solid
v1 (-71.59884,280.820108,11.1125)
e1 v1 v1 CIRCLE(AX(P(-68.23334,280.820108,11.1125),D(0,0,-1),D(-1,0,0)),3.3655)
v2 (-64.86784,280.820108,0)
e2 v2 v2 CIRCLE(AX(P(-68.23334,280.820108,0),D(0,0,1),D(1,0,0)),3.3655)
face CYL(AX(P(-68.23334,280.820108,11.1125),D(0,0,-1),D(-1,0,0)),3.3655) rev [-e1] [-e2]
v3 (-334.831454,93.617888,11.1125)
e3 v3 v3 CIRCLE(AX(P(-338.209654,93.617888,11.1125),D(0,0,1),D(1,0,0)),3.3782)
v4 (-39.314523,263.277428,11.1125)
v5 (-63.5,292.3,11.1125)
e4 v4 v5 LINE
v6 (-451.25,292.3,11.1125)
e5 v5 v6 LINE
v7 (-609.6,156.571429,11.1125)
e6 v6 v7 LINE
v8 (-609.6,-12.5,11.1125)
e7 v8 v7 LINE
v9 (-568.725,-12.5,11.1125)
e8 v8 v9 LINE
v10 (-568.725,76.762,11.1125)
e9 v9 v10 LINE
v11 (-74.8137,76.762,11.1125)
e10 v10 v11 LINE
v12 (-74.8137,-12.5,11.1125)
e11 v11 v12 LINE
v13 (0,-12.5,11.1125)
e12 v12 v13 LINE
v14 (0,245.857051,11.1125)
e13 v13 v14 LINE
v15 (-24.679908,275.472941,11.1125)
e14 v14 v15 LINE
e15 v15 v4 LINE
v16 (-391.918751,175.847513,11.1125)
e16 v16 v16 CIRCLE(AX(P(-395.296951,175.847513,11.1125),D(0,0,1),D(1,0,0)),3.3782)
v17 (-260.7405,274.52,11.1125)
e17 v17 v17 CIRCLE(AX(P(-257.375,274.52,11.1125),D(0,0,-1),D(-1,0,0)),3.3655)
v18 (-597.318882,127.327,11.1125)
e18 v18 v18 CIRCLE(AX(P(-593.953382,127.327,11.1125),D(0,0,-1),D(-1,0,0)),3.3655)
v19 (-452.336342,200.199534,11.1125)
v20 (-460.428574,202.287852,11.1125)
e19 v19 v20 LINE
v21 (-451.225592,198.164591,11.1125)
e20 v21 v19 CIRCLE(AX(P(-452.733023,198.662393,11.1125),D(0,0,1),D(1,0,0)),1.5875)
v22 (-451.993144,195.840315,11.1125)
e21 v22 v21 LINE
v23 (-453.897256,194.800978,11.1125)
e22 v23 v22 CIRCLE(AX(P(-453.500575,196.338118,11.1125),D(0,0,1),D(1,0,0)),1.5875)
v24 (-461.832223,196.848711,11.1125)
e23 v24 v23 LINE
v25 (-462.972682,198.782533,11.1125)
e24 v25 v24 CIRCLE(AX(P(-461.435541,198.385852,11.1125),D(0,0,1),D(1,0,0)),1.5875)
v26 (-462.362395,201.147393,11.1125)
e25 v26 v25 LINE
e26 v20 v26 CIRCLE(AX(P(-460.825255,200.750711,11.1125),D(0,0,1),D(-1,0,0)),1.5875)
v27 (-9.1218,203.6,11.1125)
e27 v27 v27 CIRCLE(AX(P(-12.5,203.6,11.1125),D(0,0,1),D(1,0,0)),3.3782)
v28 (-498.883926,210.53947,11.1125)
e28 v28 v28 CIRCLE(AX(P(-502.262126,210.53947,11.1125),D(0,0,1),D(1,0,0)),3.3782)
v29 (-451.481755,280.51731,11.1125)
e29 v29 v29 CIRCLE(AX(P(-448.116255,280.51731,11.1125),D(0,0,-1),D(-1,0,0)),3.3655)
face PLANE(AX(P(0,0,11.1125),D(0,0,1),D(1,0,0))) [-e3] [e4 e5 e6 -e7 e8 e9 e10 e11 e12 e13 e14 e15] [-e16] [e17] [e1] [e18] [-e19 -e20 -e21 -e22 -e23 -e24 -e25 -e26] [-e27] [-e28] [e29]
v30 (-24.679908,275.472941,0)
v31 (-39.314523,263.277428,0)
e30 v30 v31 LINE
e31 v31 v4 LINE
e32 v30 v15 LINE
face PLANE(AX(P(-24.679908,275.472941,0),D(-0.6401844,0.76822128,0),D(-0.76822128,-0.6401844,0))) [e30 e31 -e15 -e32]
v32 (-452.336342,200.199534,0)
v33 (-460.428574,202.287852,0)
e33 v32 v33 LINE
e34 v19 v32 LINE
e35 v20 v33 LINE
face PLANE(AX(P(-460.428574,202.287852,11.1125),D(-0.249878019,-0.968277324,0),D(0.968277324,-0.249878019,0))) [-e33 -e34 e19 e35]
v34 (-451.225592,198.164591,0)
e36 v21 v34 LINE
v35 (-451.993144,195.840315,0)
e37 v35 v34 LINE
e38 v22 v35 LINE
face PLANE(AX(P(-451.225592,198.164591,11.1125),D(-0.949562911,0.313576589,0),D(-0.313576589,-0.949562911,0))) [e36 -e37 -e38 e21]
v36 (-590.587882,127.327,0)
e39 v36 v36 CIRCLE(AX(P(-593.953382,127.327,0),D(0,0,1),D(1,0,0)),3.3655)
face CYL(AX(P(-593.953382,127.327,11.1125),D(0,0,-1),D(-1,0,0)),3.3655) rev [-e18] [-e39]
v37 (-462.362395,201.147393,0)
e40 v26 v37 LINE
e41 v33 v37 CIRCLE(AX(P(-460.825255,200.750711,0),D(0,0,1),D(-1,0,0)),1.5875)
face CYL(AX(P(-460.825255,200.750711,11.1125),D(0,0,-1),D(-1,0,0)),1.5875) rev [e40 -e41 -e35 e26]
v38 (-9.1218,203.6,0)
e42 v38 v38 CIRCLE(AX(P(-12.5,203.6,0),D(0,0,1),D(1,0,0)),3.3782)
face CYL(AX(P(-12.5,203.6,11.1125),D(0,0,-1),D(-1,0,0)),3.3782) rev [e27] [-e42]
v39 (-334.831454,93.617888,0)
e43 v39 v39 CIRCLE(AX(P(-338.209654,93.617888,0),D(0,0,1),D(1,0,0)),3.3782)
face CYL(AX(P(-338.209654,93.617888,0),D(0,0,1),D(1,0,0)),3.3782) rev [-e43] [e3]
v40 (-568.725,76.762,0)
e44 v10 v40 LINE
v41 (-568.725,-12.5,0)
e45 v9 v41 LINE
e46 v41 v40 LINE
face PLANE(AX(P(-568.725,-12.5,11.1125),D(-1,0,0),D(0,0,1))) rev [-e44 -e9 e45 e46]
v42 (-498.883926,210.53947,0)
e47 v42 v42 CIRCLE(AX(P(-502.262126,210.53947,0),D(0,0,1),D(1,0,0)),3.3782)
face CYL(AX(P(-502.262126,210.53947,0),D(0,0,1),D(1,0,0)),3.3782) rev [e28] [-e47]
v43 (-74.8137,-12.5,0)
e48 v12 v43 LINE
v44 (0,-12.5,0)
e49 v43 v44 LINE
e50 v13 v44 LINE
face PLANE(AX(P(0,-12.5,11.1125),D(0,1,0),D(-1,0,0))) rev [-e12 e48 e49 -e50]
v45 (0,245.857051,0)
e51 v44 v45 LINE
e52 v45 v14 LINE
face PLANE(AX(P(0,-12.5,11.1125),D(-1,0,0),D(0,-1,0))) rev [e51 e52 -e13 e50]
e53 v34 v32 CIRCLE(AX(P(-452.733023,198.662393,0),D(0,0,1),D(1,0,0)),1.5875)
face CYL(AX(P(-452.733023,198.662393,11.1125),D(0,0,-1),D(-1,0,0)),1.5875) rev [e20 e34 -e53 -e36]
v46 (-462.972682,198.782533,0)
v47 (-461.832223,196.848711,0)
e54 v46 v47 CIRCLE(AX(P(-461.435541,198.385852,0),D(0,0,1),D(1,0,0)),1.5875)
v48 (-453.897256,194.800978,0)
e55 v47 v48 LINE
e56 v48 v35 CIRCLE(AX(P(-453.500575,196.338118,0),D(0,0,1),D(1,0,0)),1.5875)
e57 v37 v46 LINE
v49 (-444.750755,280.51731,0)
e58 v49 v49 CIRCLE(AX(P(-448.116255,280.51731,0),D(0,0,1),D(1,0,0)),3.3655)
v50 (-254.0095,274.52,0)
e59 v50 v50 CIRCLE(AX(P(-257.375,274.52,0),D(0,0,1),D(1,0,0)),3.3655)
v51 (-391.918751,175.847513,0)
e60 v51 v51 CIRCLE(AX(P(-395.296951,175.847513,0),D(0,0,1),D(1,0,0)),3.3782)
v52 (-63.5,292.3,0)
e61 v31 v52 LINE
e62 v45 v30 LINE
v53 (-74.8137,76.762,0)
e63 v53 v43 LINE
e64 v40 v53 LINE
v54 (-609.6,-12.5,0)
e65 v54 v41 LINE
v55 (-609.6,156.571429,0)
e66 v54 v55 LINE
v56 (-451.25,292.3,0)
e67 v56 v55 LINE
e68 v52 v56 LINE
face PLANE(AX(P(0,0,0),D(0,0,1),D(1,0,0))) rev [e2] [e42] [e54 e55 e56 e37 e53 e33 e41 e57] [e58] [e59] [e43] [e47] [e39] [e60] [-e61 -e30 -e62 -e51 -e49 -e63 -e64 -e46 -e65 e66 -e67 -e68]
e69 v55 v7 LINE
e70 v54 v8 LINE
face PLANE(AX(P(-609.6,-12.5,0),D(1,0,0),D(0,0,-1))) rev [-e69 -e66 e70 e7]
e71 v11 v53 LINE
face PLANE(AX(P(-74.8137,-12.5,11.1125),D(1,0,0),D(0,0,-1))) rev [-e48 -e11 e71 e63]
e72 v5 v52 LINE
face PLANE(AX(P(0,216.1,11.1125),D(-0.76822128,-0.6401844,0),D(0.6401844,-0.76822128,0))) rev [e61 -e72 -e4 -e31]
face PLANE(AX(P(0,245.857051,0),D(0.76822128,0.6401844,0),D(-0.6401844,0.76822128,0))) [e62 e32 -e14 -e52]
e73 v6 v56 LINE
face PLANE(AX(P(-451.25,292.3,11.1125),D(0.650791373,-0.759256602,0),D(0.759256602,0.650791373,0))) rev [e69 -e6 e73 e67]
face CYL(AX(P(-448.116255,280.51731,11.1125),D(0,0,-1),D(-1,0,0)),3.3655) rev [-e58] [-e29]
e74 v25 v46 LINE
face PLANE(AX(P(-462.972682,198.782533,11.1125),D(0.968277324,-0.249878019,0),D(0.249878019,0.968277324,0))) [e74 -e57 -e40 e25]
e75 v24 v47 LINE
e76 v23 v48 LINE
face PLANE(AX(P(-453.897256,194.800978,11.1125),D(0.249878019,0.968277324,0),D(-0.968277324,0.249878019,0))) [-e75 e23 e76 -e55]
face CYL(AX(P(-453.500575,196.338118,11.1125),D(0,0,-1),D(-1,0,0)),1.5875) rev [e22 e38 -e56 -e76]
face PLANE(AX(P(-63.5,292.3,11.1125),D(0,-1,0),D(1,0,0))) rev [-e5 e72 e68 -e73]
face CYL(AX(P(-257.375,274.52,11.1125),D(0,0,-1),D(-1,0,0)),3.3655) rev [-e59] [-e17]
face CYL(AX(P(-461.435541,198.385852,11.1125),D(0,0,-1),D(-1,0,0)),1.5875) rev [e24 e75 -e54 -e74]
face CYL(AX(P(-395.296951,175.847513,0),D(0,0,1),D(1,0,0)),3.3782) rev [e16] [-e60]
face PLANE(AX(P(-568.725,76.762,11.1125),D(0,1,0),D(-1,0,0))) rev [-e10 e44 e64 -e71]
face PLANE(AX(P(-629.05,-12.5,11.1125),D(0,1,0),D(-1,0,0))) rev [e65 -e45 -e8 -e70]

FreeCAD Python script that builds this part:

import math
import FreeCAD as App
import Part
import Sketcher
from FreeCAD import Vector
Q = App.Units.Quantity

doc = App.newDocument("Part")
body = doc.addObject("PartDesign::Body", "Body")

sketch1 = body.newObject("Sketcher::SketchObject", "Sketch")
sketch1.AttachmentSupport = (doc.getObject("XY_Plane"), [""])
sketch1.MapMode = "FlatFace"
sketch1.addGeometry(Part.LineSegment(Vector(-629, -12.5, 0), Vector(-568.7, -12.5, 0)), False)
sketch1.addGeometry(Part.LineSegment(Vector(-568.7, -12.5, 0), Vector(-568.7, 76.8, 0)), False)
sketch1.addGeometry(Part.LineSegment(Vector(-568.7, 76.8, 0), Vector(-74.8, 76.8, 0)), False)
sketch1.addGeometry(Part.LineSegment(Vector(-74.8, 76.8, 0), Vector(-74.8, -12.5, 0)), False)
sketch1.addGeometry(Part.LineSegment(Vector(-74.8, -12.5, 0), Vector(0, -12.5, 0)), False)
sketch1.addGeometry(Part.LineSegment(Vector(0, -12.5, 0), Vector(0, 216.1, 0)), False)
sketch1.addGeometry(Part.LineSegment(Vector(0, 216.1, 0), Vector(-63.5, 292.3, 0)), False)
sketch1.addGeometry(Part.LineSegment(Vector(-63.5, 292.3, 0), Vector(-451.2, 292.3, 0)), False)
sketch1.addGeometry(Part.LineSegment(Vector(-451.2, 292.3, 0), Vector(-629, 139.9, 0)), False)
sketch1.addGeometry(Part.LineSegment(Vector(-629, 139.9, 0), Vector(-629, -12.5, 0)), False)
sketch1.addGeometry(Part.ArcOfCircle(Part.Circle(Vector(-460.8, 200.8, 0), Vector(0, 0, 1), 1.6), math.radians(76), math.radians(166)), False)
sketch1.addGeometry(Part.LineSegment(Vector(-460.4, 202.3, 0), Vector(-452.3, 200.2, 0)), False)
sketch1.addGeometry(Part.ArcOfCircle(Part.Circle(Vector(-452.7, 198.7, 0), Vector(0, 0, 1), 1.6), math.radians(-18), math.radians(76)), False)
sketch1.addGeometry(Part.LineSegment(Vector(-451.2, 198.2, 0), Vector(-452, 195.8, 0)), False)
sketch1.addGeometry(Part.ArcOfCircle(Part.Circle(Vector(-453.5, 196.3, 0), Vector(0, 0, 1), 1.6), math.radians(-104), math.radians(-18)), False)
sketch1.addGeometry(Part.LineSegment(Vector(-453.9, 194.8, 0), Vector(-461.8, 196.8, 0)), False)
sketch1.addGeometry(Part.ArcOfCircle(Part.Circle(Vector(-461.4, 198.4, 0), Vector(0, 0, 1), 1.6), math.radians(166), math.radians(256)), False)
sketch1.addGeometry(Part.LineSegment(Vector(-463, 198.8, 0), Vector(-462.4, 201.1, 0)), False)
sketch1.addGeometry(Part.Circle(Vector(-12.5, 203.6, 0), Vector(0, 0, 1), 3.4), False)
sketch1.addConstraint(Sketcher.Constraint("Coincident", 0, 2, 1, 1))
sketch1.addConstraint(Sketcher.Constraint("Coincident", 1, 2, 2, 1))
sketch1.addConstraint(Sketcher.Constraint("Coincident", 2, 2, 3, 1))
sketch1.addConstraint(Sketcher.Constraint("Coincident", 3, 2, 4, 1))
sketch1.addConstraint(Sketcher.Constraint("Coincident", 4, 2, 5, 1))
sketch1.addConstraint(Sketcher.Constraint("Coincident", 5, 2, 6, 1))
sketch1.addConstraint(Sketcher.Constraint("Coincident", 6, 2, 7, 1))
sketch1.addConstraint(Sketcher.Constraint("Coincident", 7, 2, 8, 1))
sketch1.addConstraint(Sketcher.Constraint("Coincident", 8, 2, 9, 1))
sketch1.addConstraint(Sketcher.Constraint("Coincident", 9, 2, 0, 1))
sketch1.addConstraint(Sketcher.Constraint("Tangent", 10, 1, 11, 1))
sketch1.addConstraint(Sketcher.Constraint("Tangent", 11, 2, 12, 2))
sketch1.addConstraint(Sketcher.Constraint("Tangent", 12, 1, 13, 1))
sketch1.addConstraint(Sketcher.Constraint("Tangent", 13, 2, 14, 2))
sketch1.addConstraint(Sketcher.Constraint("Tangent", 14, 1, 15, 1))
sketch1.addConstraint(Sketcher.Constraint("Tangent", 15, 2, 16, 2))
sketch1.addConstraint(Sketcher.Constraint("Tangent", 16, 1, 17, 1))
sketch1.addConstraint(Sketcher.Constraint("Tangent", 17, 2, 10, 2))
sketch1.addConstraint(Sketcher.Constraint("Horizontal", 0))
sketch1.addConstraint(Sketcher.Constraint("Vertical", 1))
sketch1.addConstraint(Sketcher.Constraint("Horizontal", 2))
sketch1.addConstraint(Sketcher.Constraint("Vertical", 3))
sketch1.addConstraint(Sketcher.Constraint("Horizontal", 4))
sketch1.addConstraint(Sketcher.Constraint("Vertical", 5))
sketch1.addConstraint(Sketcher.Constraint("Horizontal", 7))
sketch1.addConstraint(Sketcher.Constraint("Vertical", 9))
sketch1.addConstraint(Sketcher.Constraint("Equal", 10, 12))
sketch1.addConstraint(Sketcher.Constraint("Equal", 12, 14))
sketch1.addConstraint(Sketcher.Constraint("Equal", 14, 16))
sketch1.addConstraint(Sketcher.Constraint("PointOnObject", 4, 2, -2))
sketch1.addConstraint(Sketcher.Constraint("Parallel", 11, 15))
sketch1.addConstraint(Sketcher.Constraint("Perpendicular", 15, 17))
sketch1.addConstraint(Sketcher.Constraint("Horizontal", 0, 2, 3, 2))
sketch1.addConstraint(Sketcher.Constraint("DistanceY", 5, 1, 5, 2, Q("9 in")))
sketch1.addConstraint(Sketcher.Constraint("DistanceY", 9, 2, 9, 1, Q("6 in")))
sketch1.addConstraint(Sketcher.Constraint("Diameter", 18, Q("0.266 in")))
sketch1.addConstraint(Sketcher.Constraint("Radius", 10, Q("0.0625 in")))
sketch1.addConstraint(Sketcher.Constraint("DistanceY", 5, 2, 6, 2, Q("3 in")))
sketch1.addConstraint(Sketcher.Constraint("DistanceX", 6, 2, -1, 1, Q("2.5 in")))
sketch1.addConstraint(Sketcher.Constraint("DistanceX", 0, 1, 0, 2, Q("2.375 in")))
sketch1.addConstraint(Sketcher.Constraint("DistanceX", 1, 2, 7, 2, Q("4.625 in")))
sketch1.addConstraint(Sketcher.Constraint("DistanceX", 2, 1, 2, 2, Q("493.9113 mm")))
sketch1.addConstraint(Sketcher.Constraint("DistanceX", 4, 1, 4, 2, Q("74.8137 mm")))
sketch1.addConstraint(Sketcher.Constraint("DistanceY", 1, 1, 1, 2, Q("89.262 mm")))
sketch1.addConstraint(Sketcher.Constraint("DistanceY", 11, 2, 10, 3, Q("0.0216999 in")))
sketch1.addConstraint(Sketcher.Constraint("DistanceX", 16, 1, 15, 2, Q("0.0449 in")))
sketch1.addConstraint(Sketcher.Constraint("DistanceX", 18, 3, -1, 1, Q("12.5 mm")))
sketch1.addConstraint(Sketcher.Constraint("DistanceY", -1, 1, 18, 3, Q("203.6 mm")))
sketch1.addConstraint(Sketcher.Constraint("DistanceY", 0, 2, -1, 1, Q("12.5 mm")))
sketch1.addConstraint(Sketcher.Constraint("DistanceY", 16, 3, 10, 1, Q("3.902 mm")))
sketch1.addConstraint(Sketcher.Constraint("DistanceX", 10, 1, 14, 3, Q("6.927999 mm")))
sketch1.addConstraint(Sketcher.Constraint("DistanceY", -1, 1, 10, 3, Q("200.750711 mm")))
sketch1.addConstraint(Sketcher.Constraint("DistanceX", 16, 3, -1, 1, Q("461.435541 mm")))
pad1 = body.newObject("PartDesign::Pad", "Pad")
pad1.Profile = sketch1
pad1.Length = Q("0.4375 in")

sketch2 = body.newObject("Sketcher::SketchObject", "Sketch001")
sketch2.AttachmentSupport = (doc.getObject("XY_Plane"), [""])
sketch2.MapMode = "FlatFace"
sketch2.AttachmentOffset = App.Placement(Vector(0, 0, -0.2 * 25.4), App.Rotation())
sketch2.addGeometry(Part.Circle(Vector(-594, 127.3, 0), Vector(0, 0, 1), 3.4), False)
sketch2.addConstraint(Sketcher.Constraint("Diameter", 0, Q("0.265 in")))
sketch2.addConstraint(Sketcher.Constraint("DistanceY", -1, 1, 0, 3, Q("127.327 mm")))
sketch2.addConstraint(Sketcher.Constraint("DistanceX", 0, 3, -1, 1, Q("593.953382 mm")))
pocket1 = body.newObject("PartDesign::Pocket", "Pocket")
pocket1.Profile = sketch2
pocket1.Type = "ThroughAll"
pocket1.Reversed = True

sketch3 = body.newObject("Sketcher::SketchObject", "Sketch002")
sketch3.AttachmentSupport = (doc.getObject("XY_Plane"), [""])
sketch3.MapMode = "FlatFace"
sketch3.AttachmentOffset = App.Placement(Vector(0, 0, -0.075 * 25.4), App.Rotation())
sketch3.addGeometry(Part.Circle(Vector(-448.1, 280.5, 0), Vector(0, 0, 1), 3.4), False)
sketch3.addConstraint(Sketcher.Constraint("Diameter", 0, Q("0.265 in")))
sketch3.addConstraint(Sketcher.Constraint("DistanceY", -1, 1, 0, 3, Q("280.51731 mm")))
sketch3.addConstraint(Sketcher.Constraint("DistanceX", 0, 3, -1, 1, Q("448.116255 mm")))
pocket2 = body.newObject("PartDesign::Pocket", "Pocket001")
pocket2.Profile = sketch3
pocket2.Type = "ThroughAll"
pocket2.Reversed = True

sketch4 = body.newObject("Sketcher::SketchObject", "Sketch003")
sketch4.AttachmentSupport = (doc.getObject("XY_Plane"), [""])
sketch4.MapMode = "FlatFace"
sketch4.AttachmentOffset = App.Placement(Vector(0, 0, -0.075 * 25.4), App.Rotation())
sketch4.addGeometry(Part.Circle(Vector(-257.4, 274.5, 0), Vector(0, 0, 1), 3.4), False)
sketch4.addConstraint(Sketcher.Constraint("Diameter", 0, Q("0.265 in")))
sketch4.addConstraint(Sketcher.Constraint("DistanceX", 0, 3, -1, 1, Q("257.375 mm")))
sketch4.addConstraint(Sketcher.Constraint("DistanceY", -1, 1, 0, 3, Q("274.52 mm")))
pocket3 = body.newObject("PartDesign::Pocket", "Pocket002")
pocket3.Profile = sketch4
pocket3.Type = "ThroughAll"
pocket3.Reversed = True

sketch5 = body.newObject("Sketcher::SketchObject", "Sketch004")
sketch5.AttachmentSupport = (doc.getObject("XY_Plane"), [""])
sketch5.MapMode = "FlatFace"
sketch5.AttachmentOffset = App.Placement(Vector(0, 0, -0.075 * 25.4), App.Rotation())
sketch5.addGeometry(Part.Circle(Vector(-68.2, 280.8, 0), Vector(0, 0, 1), 3.4), False)
sketch5.addConstraint(Sketcher.Constraint("Diameter", 0, Q("0.265 in")))
sketch5.addConstraint(Sketcher.Constraint("DistanceX", 0, 3, -1, 1, Q("68.23334 mm")))
sketch5.addConstraint(Sketcher.Constraint("DistanceY", -1, 1, 0, 3, Q("280.820108 mm")))
pocket4 = body.newObject("PartDesign::Pocket", "Pocket003")
pocket4.Profile = sketch5
pocket4.Type = "ThroughAll"
pocket4.Reversed = True

sketch6 = body.newObject("Sketcher::SketchObject", "Sketch005")
sketch6.AttachmentSupport = (doc.getObject("XY_Plane"), [""])
sketch6.MapMode = "FlatFace"
sketch6.AttachmentOffset = App.Placement(Vector(0, 0, 0.7375 * 25.4), App.Rotation())
sketch6.addGeometry(Part.Circle(Vector(-502.3, 210.5, 0), Vector(0, 0, 1), 3.4), False)
sketch6.addGeometry(Part.Circle(Vector(-338.2, 93.6, 0), Vector(0, 0, 1), 3.4), False)
sketch6.addGeometry(Part.Circle(Vector(-395.3, 175.8, 0), Vector(0, 0, 1), 3.4), False)
sketch6.addConstraint(Sketcher.Constraint("Equal", 0, 1))
sketch6.addConstraint(Sketcher.Constraint("Equal", 1, 2))
sketch6.addConstraint(Sketcher.Constraint("Diameter", 0, Q("0.266 in")))
sketch6.addConstraint(Sketcher.Constraint("DistanceY", -1, 1, 0, 3, Q("210.53947 mm")))
sketch6.addConstraint(Sketcher.Constraint("DistanceX", 2, 3, -1, 1, Q("395.296951 mm")))
sketch6.addConstraint(Sketcher.Constraint("DistanceX", 0, 3, 1, 3, Q("164.052471 mm")))
sketch6.addConstraint(Sketcher.Constraint("DistanceY", 1, 3, 0, 3, Q("116.921582 mm")))
sketch6.addConstraint(Sketcher.Constraint("DistanceX", 0, 3, -1, 1, Q("502.262126 mm")))
sketch6.addConstraint(Sketcher.Constraint("DistanceY", -1, 1, 2, 3, Q("175.847513 mm")))
pocket5 = body.newObject("PartDesign::Pocket", "Pocket004")
pocket5.Profile = sketch6
pocket5.Type = "ThroughAll"
pocket5.Midplane = True

sketch7 = body.newObject("Sketcher::SketchObject", "Sketch006")
sketch7.AttachmentSupport = (doc.getObject("XY_Plane"), [""])
sketch7.MapMode = "FlatFace"
sketch7.AttachmentOffset = App.Placement(Vector(0, 0, 0.4375 * 25.4), App.Rotation())
sketch7.addGeometry(Part.LineSegment(Vector(-629, 157, 0), Vector(-629, -12, 0)), False)
sketch7.addGeometry(Part.LineSegment(Vector(-629, -12, 0), Vector(-610, -12, 0)), False)
sketch7.addGeometry(Part.LineSegment(Vector(-610, -12, 0), Vector(-610, 157, 0)), False)
sketch7.addGeometry(Part.LineSegment(Vector(-610, 157, 0), Vector(-629, 157, 0)), False)
sketch7.addConstraint(Sketcher.Constraint("Coincident", 0, 2, 1, 1))
sketch7.addConstraint(Sketcher.Constraint("Coincident", 1, 2, 2, 1))
sketch7.addConstraint(Sketcher.Constraint("Coincident", 2, 2, 3, 1))
sketch7.addConstraint(Sketcher.Constraint("Coincident", 3, 2, 0, 1))
sketch7.addConstraint(Sketcher.Constraint("Vertical", 0))
sketch7.addConstraint(Sketcher.Constraint("Horizontal", 1))
sketch7.addConstraint(Sketcher.Constraint("Vertical", 2))
sketch7.addConstraint(Sketcher.Constraint("Horizontal", 3))
sketch7.addConstraint(Sketcher.Constraint("DistanceX", 1, 2, -1, 1, Q("24 in")))
sketch7.addConstraint(Sketcher.Constraint("DistanceX", 1, 1, 1, 2, Q("19.45 mm")))
sketch7.addConstraint(Sketcher.Constraint("DistanceY", 0, 2, 0, 1, Q("169.071429 mm")))
sketch7.addConstraint(Sketcher.Constraint("DistanceY", 0, 2, -1, 1, Q("12.5 mm")))
pocket6 = body.newObject("PartDesign::Pocket", "Pocket005")
pocket6.Profile = sketch7
pocket6.Type = "ThroughAll"

sketch8 = body.newObject("Sketcher::SketchObject", "Sketch007")
sketch8.AttachmentSupport = (doc.getObject("XY_Plane"), [""])
sketch8.MapMode = "FlatFace"
sketch8.AttachmentOffset = App.Placement(Vector(0, 0, 0.4375 * 25.4), App.Rotation())
sketch8.addGeometry(Part.LineSegment(Vector(0, 216, 0), Vector(0, 246, 0)), False)
sketch8.addGeometry(Part.LineSegment(Vector(0, 246, 0), Vector(-25, 275, 0)), False)
sketch8.addGeometry(Part.LineSegment(Vector(-25, 275, 0), Vector(-39, 263, 0)), False)
sketch8.addGeometry(Part.LineSegment(Vector(-39, 263, 0), Vector(0, 216, 0)), False)
sketch8.addConstraint(Sketcher.Constraint("Coincident", 0, 2, 1, 1))
sketch8.addConstraint(Sketcher.Constraint("Coincident", 1, 2, 2, 1))
sketch8.addConstraint(Sketcher.Constraint("Coincident", 2, 2, 3, 1))
sketch8.addConstraint(Sketcher.Constraint("Coincident", 3, 2, 0, 1))
sketch8.addConstraint(Sketcher.Constraint("Vertical", 0))
sketch8.addConstraint(Sketcher.Constraint("PointOnObject", 0, 2, -2))
sketch8.addConstraint(Sketcher.Constraint("Perpendicular", 1, 2))
sketch8.addConstraint(Sketcher.Constraint("Perpendicular", 2, 3))
sketch8.addConstraint(Sketcher.Constraint("Distance", 2, Q("0.75 in")))
sketch8.addConstraint(Sketcher.Constraint("DistanceY", 0, 1, 0, 2, Q("29.757051 mm")))
sketch8.addConstraint(Sketcher.Constraint("DistanceY", -1, 1, 3, 2, Q("216.1 mm")))
sketch8.addConstraint(Sketcher.Constraint("Distance", 1, Q("38.551248 mm")))
pad2 = body.newObject("PartDesign::Pad", "Pad001")
pad2.Profile = sketch8
pad2.Length = Q("0.4375 in")
pad2.Reversed = True

doc.recompute()
